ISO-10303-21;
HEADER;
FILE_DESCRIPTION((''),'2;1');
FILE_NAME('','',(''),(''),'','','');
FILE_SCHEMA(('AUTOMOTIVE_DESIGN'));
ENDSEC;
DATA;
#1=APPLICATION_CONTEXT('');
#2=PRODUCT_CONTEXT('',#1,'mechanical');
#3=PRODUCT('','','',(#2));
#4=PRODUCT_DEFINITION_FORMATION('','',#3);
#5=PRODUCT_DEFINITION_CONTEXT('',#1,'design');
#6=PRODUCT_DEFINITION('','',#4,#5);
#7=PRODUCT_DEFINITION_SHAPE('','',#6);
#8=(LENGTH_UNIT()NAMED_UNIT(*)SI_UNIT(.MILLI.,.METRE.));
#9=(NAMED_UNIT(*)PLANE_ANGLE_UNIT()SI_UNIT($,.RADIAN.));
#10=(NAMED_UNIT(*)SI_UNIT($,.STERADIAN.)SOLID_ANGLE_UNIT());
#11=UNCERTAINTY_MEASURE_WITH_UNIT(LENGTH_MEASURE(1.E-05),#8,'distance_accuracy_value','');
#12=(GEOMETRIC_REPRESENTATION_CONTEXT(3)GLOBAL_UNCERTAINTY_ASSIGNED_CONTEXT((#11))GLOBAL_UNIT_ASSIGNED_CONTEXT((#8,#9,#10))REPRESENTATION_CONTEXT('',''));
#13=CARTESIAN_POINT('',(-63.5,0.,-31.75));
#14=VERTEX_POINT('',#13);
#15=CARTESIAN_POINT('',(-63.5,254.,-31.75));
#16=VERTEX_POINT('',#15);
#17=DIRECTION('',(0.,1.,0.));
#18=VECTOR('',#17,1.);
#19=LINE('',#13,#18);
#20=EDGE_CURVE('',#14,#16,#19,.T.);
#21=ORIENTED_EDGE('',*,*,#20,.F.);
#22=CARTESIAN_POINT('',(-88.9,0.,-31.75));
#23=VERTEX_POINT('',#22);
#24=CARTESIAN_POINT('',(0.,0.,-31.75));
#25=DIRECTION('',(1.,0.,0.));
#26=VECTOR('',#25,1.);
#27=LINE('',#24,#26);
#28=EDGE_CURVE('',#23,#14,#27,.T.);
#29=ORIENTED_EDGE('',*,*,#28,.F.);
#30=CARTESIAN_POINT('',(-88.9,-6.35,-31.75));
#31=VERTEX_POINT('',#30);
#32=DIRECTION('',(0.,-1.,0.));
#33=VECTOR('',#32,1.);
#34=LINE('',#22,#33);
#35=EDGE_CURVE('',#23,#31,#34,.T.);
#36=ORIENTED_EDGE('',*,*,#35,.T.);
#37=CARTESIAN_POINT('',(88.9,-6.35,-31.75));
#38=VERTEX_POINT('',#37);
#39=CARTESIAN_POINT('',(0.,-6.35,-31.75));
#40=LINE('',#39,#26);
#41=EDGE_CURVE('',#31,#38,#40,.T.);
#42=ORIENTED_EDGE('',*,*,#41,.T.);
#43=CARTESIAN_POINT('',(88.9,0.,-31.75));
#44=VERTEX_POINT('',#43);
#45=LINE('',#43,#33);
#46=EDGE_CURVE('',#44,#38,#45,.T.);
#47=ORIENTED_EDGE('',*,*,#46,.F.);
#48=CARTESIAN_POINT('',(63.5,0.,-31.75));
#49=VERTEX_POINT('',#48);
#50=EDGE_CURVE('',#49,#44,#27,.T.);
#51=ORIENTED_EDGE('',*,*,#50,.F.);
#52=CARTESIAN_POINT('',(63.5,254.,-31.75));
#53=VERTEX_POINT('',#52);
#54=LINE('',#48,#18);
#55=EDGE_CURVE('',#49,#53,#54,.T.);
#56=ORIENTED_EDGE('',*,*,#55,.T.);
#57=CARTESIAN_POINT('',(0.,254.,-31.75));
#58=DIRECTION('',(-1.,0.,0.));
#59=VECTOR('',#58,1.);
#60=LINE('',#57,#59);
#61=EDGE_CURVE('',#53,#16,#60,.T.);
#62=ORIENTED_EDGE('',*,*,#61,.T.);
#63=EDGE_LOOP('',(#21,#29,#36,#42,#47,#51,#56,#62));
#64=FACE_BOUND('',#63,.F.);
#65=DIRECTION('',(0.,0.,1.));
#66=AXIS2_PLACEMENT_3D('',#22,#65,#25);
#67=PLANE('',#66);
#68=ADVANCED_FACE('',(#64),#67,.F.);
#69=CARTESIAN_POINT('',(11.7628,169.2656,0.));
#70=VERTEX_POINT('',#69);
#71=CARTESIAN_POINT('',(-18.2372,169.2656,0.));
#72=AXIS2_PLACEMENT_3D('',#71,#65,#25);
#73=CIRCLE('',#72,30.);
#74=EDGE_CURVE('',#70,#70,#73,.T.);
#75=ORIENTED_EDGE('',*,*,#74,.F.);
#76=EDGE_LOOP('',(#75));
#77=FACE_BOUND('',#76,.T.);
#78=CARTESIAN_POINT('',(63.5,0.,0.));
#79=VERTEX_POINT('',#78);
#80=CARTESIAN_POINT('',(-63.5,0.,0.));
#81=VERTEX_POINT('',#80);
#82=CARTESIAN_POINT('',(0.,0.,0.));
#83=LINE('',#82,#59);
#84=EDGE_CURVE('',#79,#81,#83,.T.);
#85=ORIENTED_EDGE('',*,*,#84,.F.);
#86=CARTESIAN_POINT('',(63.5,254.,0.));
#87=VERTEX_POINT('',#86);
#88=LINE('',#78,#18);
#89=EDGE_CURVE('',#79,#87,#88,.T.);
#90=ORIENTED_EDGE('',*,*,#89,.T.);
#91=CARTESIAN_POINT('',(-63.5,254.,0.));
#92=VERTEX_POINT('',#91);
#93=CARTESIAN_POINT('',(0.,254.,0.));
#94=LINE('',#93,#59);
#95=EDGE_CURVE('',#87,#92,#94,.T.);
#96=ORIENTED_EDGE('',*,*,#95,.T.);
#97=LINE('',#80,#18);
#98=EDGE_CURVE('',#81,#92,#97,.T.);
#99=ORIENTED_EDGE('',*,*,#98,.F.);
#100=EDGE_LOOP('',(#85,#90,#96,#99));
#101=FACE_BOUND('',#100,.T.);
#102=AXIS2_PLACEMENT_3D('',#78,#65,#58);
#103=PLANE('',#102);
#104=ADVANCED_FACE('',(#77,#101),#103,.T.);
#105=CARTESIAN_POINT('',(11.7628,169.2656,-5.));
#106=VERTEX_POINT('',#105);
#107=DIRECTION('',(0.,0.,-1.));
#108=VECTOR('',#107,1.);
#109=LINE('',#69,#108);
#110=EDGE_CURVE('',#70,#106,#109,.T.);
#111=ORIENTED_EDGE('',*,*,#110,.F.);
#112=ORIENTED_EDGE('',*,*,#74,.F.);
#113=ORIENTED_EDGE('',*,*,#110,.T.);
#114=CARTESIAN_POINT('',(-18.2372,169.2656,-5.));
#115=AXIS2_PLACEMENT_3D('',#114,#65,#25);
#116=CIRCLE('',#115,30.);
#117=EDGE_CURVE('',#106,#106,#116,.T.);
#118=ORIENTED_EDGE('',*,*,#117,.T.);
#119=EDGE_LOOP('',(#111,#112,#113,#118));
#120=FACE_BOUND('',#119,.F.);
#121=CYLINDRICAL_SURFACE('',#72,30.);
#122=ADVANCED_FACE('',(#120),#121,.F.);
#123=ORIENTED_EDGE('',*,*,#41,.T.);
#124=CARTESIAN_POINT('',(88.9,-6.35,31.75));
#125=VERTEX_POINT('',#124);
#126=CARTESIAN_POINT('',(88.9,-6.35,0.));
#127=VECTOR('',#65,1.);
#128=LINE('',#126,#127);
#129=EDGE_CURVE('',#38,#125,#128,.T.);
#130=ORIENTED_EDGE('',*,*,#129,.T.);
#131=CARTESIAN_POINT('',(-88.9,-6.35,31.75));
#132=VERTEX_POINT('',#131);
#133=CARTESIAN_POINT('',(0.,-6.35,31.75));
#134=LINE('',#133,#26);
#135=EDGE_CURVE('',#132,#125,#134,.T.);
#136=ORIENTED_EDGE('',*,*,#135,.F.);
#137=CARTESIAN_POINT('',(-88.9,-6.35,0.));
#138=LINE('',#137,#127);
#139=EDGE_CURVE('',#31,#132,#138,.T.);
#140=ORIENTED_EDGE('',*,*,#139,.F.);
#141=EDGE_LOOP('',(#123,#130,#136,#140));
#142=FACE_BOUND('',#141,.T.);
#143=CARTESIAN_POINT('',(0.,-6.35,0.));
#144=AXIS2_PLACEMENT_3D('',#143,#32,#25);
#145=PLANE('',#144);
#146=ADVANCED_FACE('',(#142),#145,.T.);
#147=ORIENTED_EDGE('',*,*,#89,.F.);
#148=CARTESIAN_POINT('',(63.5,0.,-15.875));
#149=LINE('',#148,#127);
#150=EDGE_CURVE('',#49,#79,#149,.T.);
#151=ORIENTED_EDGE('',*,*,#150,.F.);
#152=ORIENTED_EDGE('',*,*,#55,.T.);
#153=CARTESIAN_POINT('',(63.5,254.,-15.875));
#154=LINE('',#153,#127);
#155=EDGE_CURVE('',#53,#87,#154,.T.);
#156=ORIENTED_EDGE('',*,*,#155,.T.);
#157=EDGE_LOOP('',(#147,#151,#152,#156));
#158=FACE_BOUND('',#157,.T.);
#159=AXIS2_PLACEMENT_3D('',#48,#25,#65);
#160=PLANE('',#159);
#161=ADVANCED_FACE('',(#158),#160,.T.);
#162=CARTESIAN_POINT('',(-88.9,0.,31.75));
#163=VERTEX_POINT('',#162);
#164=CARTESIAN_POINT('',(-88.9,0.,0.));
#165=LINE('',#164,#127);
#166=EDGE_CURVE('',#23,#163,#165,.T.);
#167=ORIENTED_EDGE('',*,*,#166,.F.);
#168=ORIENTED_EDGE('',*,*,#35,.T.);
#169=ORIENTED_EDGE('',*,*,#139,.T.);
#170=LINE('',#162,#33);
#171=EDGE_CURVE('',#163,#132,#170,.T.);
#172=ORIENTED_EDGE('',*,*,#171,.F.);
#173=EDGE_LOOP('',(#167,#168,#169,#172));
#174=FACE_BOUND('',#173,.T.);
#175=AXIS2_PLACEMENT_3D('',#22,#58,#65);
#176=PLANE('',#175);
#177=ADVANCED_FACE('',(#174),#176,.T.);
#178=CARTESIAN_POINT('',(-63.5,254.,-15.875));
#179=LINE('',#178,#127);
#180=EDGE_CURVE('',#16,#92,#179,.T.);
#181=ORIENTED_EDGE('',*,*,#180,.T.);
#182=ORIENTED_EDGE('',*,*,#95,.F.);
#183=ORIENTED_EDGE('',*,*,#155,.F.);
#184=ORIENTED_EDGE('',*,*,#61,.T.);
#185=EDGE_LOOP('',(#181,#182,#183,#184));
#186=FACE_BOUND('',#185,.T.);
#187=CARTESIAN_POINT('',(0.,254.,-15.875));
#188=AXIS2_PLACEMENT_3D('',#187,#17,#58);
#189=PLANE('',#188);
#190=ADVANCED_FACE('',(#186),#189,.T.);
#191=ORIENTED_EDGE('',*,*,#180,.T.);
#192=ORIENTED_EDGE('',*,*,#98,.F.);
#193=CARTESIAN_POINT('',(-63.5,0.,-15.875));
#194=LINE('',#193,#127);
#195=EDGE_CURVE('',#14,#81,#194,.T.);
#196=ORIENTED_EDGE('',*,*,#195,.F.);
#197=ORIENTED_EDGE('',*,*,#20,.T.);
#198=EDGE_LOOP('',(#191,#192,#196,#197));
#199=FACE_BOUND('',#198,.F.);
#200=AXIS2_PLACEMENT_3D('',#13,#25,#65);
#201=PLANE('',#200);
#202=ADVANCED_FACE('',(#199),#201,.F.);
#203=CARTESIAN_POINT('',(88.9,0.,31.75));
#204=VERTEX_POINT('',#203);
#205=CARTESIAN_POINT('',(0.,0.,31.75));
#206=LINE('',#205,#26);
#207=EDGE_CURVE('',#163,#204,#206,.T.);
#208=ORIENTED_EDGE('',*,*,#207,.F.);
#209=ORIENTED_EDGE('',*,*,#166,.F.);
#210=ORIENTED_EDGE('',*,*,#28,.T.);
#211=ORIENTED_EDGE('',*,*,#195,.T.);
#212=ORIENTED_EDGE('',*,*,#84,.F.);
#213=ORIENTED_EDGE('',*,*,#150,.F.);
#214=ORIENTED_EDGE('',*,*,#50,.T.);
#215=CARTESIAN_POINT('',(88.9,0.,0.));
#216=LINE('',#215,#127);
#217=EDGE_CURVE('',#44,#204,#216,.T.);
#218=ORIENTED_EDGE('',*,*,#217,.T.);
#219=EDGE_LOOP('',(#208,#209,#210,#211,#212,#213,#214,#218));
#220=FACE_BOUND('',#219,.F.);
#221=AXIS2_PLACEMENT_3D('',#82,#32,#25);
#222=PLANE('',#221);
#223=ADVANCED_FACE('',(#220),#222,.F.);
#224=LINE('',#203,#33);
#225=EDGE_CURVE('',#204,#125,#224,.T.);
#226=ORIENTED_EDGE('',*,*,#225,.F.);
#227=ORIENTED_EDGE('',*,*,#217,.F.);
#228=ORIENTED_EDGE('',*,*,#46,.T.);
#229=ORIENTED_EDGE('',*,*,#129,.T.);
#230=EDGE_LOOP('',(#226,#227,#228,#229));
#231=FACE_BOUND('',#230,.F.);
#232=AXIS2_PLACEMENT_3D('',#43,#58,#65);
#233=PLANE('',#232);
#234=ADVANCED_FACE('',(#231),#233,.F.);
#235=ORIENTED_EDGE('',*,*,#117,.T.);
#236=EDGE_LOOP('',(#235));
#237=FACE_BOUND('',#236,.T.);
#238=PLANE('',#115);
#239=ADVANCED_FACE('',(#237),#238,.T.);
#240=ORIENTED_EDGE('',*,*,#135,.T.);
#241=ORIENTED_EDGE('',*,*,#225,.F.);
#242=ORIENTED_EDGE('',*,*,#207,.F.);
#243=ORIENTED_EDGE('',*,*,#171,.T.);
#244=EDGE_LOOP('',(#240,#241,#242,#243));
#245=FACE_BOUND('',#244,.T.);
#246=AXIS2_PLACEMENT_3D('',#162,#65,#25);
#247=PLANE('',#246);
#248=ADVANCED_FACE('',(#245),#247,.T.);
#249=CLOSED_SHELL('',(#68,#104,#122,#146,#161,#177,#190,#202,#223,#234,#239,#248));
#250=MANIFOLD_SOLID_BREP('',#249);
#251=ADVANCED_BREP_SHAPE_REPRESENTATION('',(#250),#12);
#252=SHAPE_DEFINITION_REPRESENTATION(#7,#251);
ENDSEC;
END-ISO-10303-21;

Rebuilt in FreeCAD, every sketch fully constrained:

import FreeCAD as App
import Part
import Sketcher

V = App.Vector
Q = App.Units.Quantity


def add_polygon(sketch, points):
    """Adds a closed chain of lines whose ends are joined by coincident constraints."""
    first, n = sketch.GeometryCount, len(points)
    for a, b in zip(points, points[1:] + points[:1]):
        sketch.addGeometry(Part.LineSegment(App.Vector(*a, 0), App.Vector(*b, 0)), False)
    for i in range(n):
        sketch.addConstraint(Sketcher.Constraint("Coincident", first + i, 2, first + (i + 1) % n, 1))

doc = App.newDocument("Part")
body = doc.addObject("PartDesign::Body", "Body")

# Sketch on XZ plane
sketch1 = body.newObject("Sketcher::SketchObject", "Sketch")
sketch1.AttachmentSupport = (doc.getObject("XZ_Plane"), [""])
sketch1.MapMode = "FlatFace"
add_polygon(sketch1, [(-88.9, 31.75), (-88.9, -31.75), (88.9, -31.75), (88.9, 31.75)])  # lines 0-3
sketch1.addConstraint([
    Sketcher.Constraint("Vertical", 0),
    Sketcher.Constraint("Horizontal", 1),
    Sketcher.Constraint("Vertical", 2),
    Sketcher.Constraint("Horizontal", 3),
    Sketcher.Constraint("Symmetric", 0, 2, 2, 2, -1, 1),
    Sketcher.Constraint("DistanceX", 1, 1, 1, 2, Q("7 in")),
    Sketcher.Constraint("DistanceY", 0, 2, 0, 1, Q("2.5 in")),
])
pad1 = body.newObject("PartDesign::Pad", "Pad")
pad1.Profile = sketch1
pad1.Length = Q("0.25 in")

# Sketch on XZ plane
sketch2 = body.newObject("Sketcher::SketchObject", "Sketch001")
sketch2.AttachmentSupport = (doc.getObject("XZ_Plane"), [""])
sketch2.MapMode = "FlatFace"
add_polygon(sketch2, [(63.5, 0), (63.5, -31.75), (-63.5, -31.75), (-63.5, 0)])  # lines 0-3
sketch2.addConstraint([
    Sketcher.Constraint("Vertical", 0),
    Sketcher.Constraint("Horizontal", 1),
    Sketcher.Constraint("Vertical", 2),
    Sketcher.Constraint("Horizontal", 3),
    Sketcher.Constraint("Symmetric", 2, 2, 3, 2, -1, 1),
    Sketcher.Constraint("DistanceX", 1, 2, 1, 1, Q("5 in")),
    Sketcher.Constraint("DistanceY", 0, 2, 0, 1, Q("1.25 in")),
])
pad2 = body.newObject("PartDesign::Pad", "Pad001")
pad2.Profile = sketch2
pad2.Length = Q("10 in")
pad2.Reversed = True

# Sketch on XY plane
sketch3 = body.newObject("Sketcher::SketchObject", "Sketch002")
sketch3.AttachmentSupport = (doc.getObject("XY_Plane"), [""])
sketch3.MapMode = "FlatFace"
sketch3.addGeometry(Part.Circle(V(-18.2372, 169.2656, 0), V(0, 0, 1), 30), False)
sketch3.addConstraint([
    Sketcher.Constraint("Diameter", 0, Q("60 mm")),
    Sketcher.Constraint("DistanceX", 0, 3, -1, 1, Q("0.718 in")),
    Sketcher.Constraint("DistanceY", -1, 1, 0, 3, Q("6.664 in")),
])
pocket1 = body.newObject("PartDesign::Pocket", "Pocket")
pocket1.Profile = sketch3
pocket1.Length = 5

doc.recompute()
